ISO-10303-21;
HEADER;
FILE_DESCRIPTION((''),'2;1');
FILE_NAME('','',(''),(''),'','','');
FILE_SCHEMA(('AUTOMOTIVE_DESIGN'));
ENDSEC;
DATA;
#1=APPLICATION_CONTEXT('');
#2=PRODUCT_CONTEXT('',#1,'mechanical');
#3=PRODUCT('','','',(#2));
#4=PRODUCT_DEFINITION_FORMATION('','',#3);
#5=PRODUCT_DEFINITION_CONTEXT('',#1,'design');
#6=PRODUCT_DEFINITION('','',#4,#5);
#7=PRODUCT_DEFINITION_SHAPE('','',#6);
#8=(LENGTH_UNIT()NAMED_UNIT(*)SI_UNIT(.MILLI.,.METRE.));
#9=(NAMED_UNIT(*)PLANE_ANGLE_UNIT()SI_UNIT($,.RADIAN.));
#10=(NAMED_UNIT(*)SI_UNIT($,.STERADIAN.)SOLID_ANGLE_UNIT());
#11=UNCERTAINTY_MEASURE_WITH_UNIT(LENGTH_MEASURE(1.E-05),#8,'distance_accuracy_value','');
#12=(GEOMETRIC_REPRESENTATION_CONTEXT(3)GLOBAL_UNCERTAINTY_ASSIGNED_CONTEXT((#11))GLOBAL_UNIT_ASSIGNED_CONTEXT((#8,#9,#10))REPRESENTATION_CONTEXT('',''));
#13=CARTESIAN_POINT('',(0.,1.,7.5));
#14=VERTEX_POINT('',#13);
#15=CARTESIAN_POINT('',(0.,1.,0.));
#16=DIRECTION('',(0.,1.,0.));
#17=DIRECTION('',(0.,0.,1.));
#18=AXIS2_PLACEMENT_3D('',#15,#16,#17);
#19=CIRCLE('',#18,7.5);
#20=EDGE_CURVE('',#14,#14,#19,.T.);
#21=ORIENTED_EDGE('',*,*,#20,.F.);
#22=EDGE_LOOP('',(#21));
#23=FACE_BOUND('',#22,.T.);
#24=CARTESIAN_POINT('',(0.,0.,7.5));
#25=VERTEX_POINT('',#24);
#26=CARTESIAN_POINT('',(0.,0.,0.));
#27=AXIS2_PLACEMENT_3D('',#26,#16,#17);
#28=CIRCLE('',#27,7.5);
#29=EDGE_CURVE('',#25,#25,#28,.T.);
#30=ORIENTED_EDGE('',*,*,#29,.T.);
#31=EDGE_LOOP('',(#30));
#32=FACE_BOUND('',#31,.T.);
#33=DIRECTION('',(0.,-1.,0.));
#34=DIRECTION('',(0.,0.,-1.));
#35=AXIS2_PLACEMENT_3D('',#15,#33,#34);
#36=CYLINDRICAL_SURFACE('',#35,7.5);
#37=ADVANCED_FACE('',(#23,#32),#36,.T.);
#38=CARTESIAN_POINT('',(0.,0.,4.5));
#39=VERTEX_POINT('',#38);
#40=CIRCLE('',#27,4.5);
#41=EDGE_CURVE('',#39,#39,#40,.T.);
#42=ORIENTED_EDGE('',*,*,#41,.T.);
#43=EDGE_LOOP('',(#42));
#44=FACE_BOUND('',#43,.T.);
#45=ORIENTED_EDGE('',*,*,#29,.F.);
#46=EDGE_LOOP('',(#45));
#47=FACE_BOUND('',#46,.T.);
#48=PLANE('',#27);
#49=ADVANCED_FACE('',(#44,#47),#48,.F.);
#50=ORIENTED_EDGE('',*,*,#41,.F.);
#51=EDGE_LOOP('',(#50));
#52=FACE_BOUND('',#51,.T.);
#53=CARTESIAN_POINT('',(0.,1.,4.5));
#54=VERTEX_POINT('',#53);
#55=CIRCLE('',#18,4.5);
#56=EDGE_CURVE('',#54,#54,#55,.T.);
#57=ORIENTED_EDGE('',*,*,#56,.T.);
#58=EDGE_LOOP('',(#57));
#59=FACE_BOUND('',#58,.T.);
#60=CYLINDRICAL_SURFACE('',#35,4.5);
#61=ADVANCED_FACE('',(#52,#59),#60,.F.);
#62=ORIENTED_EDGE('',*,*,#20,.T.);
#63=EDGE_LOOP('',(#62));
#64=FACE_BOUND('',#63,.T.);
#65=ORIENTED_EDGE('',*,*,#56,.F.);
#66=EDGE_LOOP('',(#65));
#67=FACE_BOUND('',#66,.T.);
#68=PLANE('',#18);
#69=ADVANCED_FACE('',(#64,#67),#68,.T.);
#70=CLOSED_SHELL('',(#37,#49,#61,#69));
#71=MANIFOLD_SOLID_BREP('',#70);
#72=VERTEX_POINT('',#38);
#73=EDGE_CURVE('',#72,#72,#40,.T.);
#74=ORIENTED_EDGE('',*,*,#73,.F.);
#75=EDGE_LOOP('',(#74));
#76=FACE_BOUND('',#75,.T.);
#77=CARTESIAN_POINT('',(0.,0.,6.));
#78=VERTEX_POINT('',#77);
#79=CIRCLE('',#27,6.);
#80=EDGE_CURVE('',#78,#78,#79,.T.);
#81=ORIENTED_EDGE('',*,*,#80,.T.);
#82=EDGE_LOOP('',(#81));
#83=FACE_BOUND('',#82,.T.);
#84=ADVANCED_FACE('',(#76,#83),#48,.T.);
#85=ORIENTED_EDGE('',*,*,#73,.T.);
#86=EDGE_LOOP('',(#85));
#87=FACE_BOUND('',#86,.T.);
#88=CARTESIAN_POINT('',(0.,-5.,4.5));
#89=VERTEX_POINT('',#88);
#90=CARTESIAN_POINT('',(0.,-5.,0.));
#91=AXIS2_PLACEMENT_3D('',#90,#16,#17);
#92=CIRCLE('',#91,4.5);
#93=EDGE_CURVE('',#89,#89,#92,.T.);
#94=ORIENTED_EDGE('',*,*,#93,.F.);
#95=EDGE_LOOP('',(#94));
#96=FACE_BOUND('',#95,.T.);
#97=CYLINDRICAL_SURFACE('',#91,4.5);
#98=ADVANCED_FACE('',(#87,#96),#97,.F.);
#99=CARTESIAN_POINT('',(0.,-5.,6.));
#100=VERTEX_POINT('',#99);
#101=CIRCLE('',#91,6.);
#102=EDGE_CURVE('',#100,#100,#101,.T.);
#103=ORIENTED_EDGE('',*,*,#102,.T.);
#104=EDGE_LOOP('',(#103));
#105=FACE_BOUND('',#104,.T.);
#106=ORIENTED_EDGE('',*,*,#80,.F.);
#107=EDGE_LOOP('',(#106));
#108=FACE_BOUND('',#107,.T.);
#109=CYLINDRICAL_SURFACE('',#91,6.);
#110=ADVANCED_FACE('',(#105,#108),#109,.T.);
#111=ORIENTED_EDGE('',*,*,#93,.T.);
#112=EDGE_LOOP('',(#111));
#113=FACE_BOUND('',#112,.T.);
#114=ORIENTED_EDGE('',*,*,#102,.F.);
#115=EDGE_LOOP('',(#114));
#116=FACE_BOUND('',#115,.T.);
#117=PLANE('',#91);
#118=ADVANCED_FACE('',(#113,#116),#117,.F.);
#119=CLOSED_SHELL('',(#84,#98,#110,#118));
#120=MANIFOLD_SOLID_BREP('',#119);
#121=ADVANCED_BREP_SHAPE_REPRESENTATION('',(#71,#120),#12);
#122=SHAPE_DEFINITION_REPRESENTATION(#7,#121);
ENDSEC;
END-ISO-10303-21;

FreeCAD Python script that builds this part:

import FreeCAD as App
import Part
import Sketcher
from FreeCAD import Vector
Q = App.Units.Quantity

doc = App.newDocument("Part")
body = doc.addObject("PartDesign::Body", "Body")

sketch1 = body.newObject("Sketcher::SketchObject", "Sketch")
sketch1.AttachmentSupport = (doc.getObject("XZ_Plane"), [""])
sketch1.MapMode = "FlatFace"
sketch1.addGeometry([
    Part.Circle(Vector(0, 0, 0), Vector(0, 0, 1), 7.5),
    Part.Circle(Vector(0, 0, 0), Vector(0, 0, 1), 4.5),
], False)
sketch1.addConstraint([
    Sketcher.Constraint("Coincident", 0, 3, -1, 1),
    Sketcher.Constraint("Coincident", 1, 3, -1, 1),
    Sketcher.Constraint("Diameter", 0, Q("15 mm")),
    Sketcher.Constraint("Diameter", 1, Q("9 mm")),
])
pad1 = body.newObject("PartDesign::Pad", "Pad")
pad1.Profile = sketch1
pad1.Length = 1
pad1.Reversed = True
body2 = doc.addObject("PartDesign::Body", "Body001")

sketch2 = body2.newObject("Sketcher::SketchObject", "Sketch001")
sketch2.AttachmentSupport = (doc.getObject("XZ_Plane001"), [""])
sketch2.MapMode = "FlatFace"
sketch2.addGeometry([
    Part.Circle(Vector(0, 0, 0), Vector(0, 0, 1), 6),
    Part.Circle(Vector(0, 0, 0), Vector(0, 0, 1), 4.5),
], False)
sketch2.addConstraint([
    Sketcher.Constraint("Coincident", 0, 3, -1, 1),
    Sketcher.Constraint("Coincident", 1, 3, -1, 1),
    Sketcher.Constraint("Diameter", 0, Q("12 mm")),
    Sketcher.Constraint("Diameter", 1, Q("9 mm")),
])
pad2 = body2.newObject("PartDesign::Pad", "Pad001")
pad2.Profile = sketch2
pad2.Length = 5

doc.recompute()
